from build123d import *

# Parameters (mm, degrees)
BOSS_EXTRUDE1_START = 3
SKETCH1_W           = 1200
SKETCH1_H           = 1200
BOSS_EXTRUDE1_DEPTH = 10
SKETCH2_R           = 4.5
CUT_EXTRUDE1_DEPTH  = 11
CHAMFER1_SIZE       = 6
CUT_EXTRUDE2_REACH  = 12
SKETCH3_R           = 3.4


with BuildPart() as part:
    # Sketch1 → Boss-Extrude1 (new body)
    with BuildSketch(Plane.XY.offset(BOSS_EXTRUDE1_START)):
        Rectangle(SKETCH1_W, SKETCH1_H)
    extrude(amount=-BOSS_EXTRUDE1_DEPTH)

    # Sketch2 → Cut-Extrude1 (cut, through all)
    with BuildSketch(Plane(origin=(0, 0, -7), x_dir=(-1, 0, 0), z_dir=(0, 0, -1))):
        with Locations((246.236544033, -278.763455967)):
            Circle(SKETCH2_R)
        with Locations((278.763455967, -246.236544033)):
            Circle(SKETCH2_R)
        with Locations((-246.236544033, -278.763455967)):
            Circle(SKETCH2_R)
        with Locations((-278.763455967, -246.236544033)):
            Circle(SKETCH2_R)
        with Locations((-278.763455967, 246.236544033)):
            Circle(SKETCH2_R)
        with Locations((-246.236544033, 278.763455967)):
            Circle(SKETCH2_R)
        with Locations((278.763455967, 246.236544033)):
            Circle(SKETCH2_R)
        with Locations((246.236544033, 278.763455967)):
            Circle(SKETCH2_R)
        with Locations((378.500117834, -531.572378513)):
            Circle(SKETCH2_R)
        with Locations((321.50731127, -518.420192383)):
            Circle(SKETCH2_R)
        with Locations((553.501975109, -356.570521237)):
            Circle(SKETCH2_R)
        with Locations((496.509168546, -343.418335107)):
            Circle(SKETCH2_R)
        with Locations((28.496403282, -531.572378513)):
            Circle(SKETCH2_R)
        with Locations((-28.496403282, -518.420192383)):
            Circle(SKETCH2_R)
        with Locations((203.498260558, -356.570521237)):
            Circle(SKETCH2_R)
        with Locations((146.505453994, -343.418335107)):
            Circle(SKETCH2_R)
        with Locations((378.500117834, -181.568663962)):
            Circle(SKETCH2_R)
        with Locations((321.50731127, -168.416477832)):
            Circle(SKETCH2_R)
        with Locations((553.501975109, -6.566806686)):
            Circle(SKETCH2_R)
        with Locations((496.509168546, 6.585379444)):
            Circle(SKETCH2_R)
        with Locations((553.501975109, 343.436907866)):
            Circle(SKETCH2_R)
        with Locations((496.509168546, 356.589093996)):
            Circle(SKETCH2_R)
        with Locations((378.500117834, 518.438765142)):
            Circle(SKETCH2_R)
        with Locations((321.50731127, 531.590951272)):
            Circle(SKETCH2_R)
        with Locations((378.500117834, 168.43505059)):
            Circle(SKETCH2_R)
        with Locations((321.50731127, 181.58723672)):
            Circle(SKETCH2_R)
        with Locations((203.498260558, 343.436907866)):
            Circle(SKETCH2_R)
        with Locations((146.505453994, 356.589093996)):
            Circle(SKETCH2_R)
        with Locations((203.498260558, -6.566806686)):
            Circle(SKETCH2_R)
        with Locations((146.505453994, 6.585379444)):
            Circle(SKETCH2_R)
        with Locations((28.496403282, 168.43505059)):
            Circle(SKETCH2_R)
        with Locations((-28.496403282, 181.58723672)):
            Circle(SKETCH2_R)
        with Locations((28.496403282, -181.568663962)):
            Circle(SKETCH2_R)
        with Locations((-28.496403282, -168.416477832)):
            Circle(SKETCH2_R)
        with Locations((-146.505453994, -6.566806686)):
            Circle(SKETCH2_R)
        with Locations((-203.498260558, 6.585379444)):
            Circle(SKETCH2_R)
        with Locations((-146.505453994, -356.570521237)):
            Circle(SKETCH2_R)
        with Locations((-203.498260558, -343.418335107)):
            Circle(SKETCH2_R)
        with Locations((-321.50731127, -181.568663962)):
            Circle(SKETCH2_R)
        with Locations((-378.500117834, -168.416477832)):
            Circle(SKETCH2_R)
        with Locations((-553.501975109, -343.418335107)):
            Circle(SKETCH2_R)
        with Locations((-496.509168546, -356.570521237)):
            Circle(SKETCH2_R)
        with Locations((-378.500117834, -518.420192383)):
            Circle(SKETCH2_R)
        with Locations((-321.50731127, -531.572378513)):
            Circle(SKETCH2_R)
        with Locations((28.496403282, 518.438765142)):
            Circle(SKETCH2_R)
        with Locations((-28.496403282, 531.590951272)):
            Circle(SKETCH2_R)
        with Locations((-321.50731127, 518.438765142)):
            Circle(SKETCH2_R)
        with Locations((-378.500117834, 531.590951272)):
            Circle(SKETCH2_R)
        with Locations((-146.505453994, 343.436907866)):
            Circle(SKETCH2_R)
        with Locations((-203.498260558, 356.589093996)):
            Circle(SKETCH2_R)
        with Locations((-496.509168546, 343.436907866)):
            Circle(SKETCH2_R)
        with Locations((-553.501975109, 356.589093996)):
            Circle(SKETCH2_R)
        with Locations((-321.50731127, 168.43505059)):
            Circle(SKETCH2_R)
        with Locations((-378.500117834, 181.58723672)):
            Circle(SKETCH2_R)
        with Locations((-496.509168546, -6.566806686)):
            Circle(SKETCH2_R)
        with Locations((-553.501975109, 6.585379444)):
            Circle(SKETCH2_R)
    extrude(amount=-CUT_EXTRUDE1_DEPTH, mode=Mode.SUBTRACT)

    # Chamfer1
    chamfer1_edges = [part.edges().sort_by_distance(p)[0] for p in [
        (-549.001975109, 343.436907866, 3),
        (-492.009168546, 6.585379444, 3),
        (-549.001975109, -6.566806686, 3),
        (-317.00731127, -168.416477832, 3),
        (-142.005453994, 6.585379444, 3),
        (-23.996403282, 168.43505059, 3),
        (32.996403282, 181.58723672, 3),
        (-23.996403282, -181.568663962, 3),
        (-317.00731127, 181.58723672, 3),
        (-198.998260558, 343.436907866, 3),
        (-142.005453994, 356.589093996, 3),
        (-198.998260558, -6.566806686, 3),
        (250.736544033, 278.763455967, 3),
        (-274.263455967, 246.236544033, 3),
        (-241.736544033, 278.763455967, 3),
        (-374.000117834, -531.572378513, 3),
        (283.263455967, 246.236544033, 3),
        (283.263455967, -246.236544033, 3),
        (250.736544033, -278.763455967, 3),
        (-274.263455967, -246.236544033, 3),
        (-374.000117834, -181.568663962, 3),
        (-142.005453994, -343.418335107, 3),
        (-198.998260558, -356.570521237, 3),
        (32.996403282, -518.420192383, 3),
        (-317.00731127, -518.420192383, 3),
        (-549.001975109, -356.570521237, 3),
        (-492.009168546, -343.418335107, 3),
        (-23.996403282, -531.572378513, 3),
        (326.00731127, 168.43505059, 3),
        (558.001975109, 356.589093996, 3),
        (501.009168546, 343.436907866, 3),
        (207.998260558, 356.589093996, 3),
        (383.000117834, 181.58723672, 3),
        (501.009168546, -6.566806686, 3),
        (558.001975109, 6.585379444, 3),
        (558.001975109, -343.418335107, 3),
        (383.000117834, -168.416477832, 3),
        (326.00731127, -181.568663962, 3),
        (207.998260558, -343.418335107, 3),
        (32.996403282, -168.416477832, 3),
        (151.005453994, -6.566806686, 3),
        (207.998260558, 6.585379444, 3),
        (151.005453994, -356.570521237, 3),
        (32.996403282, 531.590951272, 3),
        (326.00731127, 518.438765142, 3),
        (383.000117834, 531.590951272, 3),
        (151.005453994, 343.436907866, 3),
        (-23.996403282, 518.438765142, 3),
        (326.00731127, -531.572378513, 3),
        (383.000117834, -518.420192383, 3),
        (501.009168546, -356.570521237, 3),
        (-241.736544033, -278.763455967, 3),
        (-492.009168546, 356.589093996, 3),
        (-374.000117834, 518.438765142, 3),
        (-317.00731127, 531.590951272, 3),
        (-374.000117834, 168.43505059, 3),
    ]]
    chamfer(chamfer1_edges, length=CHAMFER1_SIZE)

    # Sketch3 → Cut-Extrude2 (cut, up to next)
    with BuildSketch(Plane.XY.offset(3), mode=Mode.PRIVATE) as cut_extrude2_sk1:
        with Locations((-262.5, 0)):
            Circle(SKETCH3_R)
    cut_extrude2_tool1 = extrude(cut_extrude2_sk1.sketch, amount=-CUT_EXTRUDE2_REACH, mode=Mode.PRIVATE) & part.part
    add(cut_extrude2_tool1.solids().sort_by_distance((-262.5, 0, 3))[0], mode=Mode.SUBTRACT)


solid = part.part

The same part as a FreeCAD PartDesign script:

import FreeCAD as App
import Part
import Sketcher


def edges_at(feature, points):
    """Names of the edges that pass closest to the given points."""
    edges = feature.Shape.Edges
    near = lambda p: min(range(len(edges)), key=lambda i: edges[i].distToShape(Part.Vertex(*p))[0])
    return sorted({f"Edge{near(p) + 1}" for p in points})


def add_polygon(sketch, points):
    """Adds a closed chain of lines whose ends are joined by coincident constraints."""
    first, n = sketch.GeometryCount, len(points)
    for a, b in zip(points, points[1:] + points[:1]):
        sketch.addGeometry(Part.LineSegment(App.Vector(*a, 0), App.Vector(*b, 0)), False)
    for i in range(n):
        sketch.addConstraint(Sketcher.Constraint("Coincident", first + i, 2, first + (i + 1) % n, 1))

doc = App.newDocument("Part")
params = doc.addObject("Spreadsheet::Sheet", "Params")
for row, (alias, value) in enumerate([
    ("sketch1_width", "1200 mm"),
    ("pad1_length", "10 mm"),
    ("sketch2_diameter", "9 mm"),
    ("chamfer_size", "6 mm"),
    ("sketch3_diameter", "6.8 mm"),
], start=1):
    params.set(f"A{row}", alias)
    params.set(f"B{row}", "=" + value)
    params.setAlias(f"B{row}", alias)

body = doc.addObject("PartDesign::Body", "Body")

# Sketch on XY plane
sketch1 = body.newObject("Sketcher::SketchObject", "Sketch")
sketch1.AttachmentSupport = (doc.getObject("XY_Plane"), [""])
sketch1.MapMode = "FlatFace"
sketch1.AttachmentOffset = App.Placement(App.Vector(0, 0, 3), App.Rotation())
add_polygon(sketch1, [(-600, 600), (-600, -600), (600, -600), (600, 600)])  # lines 0-3
sketch1.addConstraint([
    Sketcher.Constraint("Vertical", 0),
    Sketcher.Constraint("Horizontal", 1),
    Sketcher.Constraint("Vertical", 2),
    Sketcher.Constraint("Horizontal", 3),
    Sketcher.Constraint("Symmetric", 0, 2, 2, 2, -1, 1),
    Sketcher.Constraint("Equal", 3, 0),
    Sketcher.Constraint("DistanceX", 1, 1, 1, 2, 1200.0),
])
sketch1.setExpression("Constraints[10]", "Params.sketch1_width")
pad1 = body.newObject("PartDesign::Pad", "Pad")
pad1.Profile = sketch1
pad1.setExpression("Length", "Params.pad1_length")
pad1.Reversed = True

# Sketch on XY plane
sketch2 = body.newObject("Sketcher::SketchObject", "Sketch001")
sketch2.AttachmentSupport = (doc.getObject("XY_Plane"), [""])
sketch2.MapMode = "FlatFace"
sketch2.AttachmentOffset = App.Placement(App.Vector(0, 0, -7), App.Rotation())
sketch2.addGeometry([
    Part.Circle(App.Vector(-246.2, -278.8, 0), App.Vector(0, 0, 1), 4.5),  # 0
    Part.Circle(App.Vector(-278.8, -246.2, 0), App.Vector(0, 0, 1), 4.5),  # 1
    Part.Circle(App.Vector(246.2, -278.8, 0), App.Vector(0, 0, 1), 4.5),  # 2
    Part.Circle(App.Vector(278.8, -246.2, 0), App.Vector(0, 0, 1), 4.5),  # 3
    Part.Circle(App.Vector(278.8, 246.2, 0), App.Vector(0, 0, 1), 4.5),  # 4
    Part.Circle(App.Vector(246.2, 278.8, 0), App.Vector(0, 0, 1), 4.5),  # 5
    Part.Circle(App.Vector(-278.8, 246.2, 0), App.Vector(0, 0, 1), 4.5),  # 6
    Part.Circle(App.Vector(-246.2, 278.8, 0), App.Vector(0, 0, 1), 4.5),  # 7
    Part.Circle(App.Vector(-378.5, -531.6, 0), App.Vector(0, 0, 1), 4.5),  # 8
    Part.Circle(App.Vector(-321.5, -518.4, 0), App.Vector(0, 0, 1), 4.5),  # 9
    Part.Circle(App.Vector(-553.5, -356.6, 0), App.Vector(0, 0, 1), 4.5),  # 10
    Part.Circle(App.Vector(-496.5, -343.4, 0), App.Vector(0, 0, 1), 4.5),  # 11
    Part.Circle(App.Vector(-28.5, -531.6, 0), App.Vector(0, 0, 1), 4.5),  # 12
    Part.Circle(App.Vector(28.5, -518.4, 0), App.Vector(0, 0, 1), 4.5),  # 13
    Part.Circle(App.Vector(-203.5, -356.6, 0), App.Vector(0, 0, 1), 4.5),  # 14
    Part.Circle(App.Vector(-146.5, -343.4, 0), App.Vector(0, 0, 1), 4.5),  # 15
    Part.Circle(App.Vector(-378.5, -181.6, 0), App.Vector(0, 0, 1), 4.5),  # 16
    Part.Circle(App.Vector(-321.5, -168.4, 0), App.Vector(0, 0, 1), 4.5),  # 17
    Part.Circle(App.Vector(-553.5, -6.6, 0), App.Vector(0, 0, 1), 4.5),  # 18
    Part.Circle(App.Vector(-496.5, 6.6, 0), App.Vector(0, 0, 1), 4.5),  # 19
    Part.Circle(App.Vector(-553.5, 343.4, 0), App.Vector(0, 0, 1), 4.5),  # 20
    Part.Circle(App.Vector(-496.5, 356.6, 0), App.Vector(0, 0, 1), 4.5),  # 21
    Part.Circle(App.Vector(-378.5, 518.4, 0), App.Vector(0, 0, 1), 4.5),  # 22
    Part.Circle(App.Vector(-321.5, 531.6, 0), App.Vector(0, 0, 1), 4.5),  # 23
    Part.Circle(App.Vector(-378.5, 168.4, 0), App.Vector(0, 0, 1), 4.5),  # 24
    Part.Circle(App.Vector(-321.5, 181.6, 0), App.Vector(0, 0, 1), 4.5),  # 25
    Part.Circle(App.Vector(-203.5, 343.4, 0), App.Vector(0, 0, 1), 4.5),  # 26
    Part.Circle(App.Vector(-146.5, 356.6, 0), App.Vector(0, 0, 1), 4.5),  # 27
    Part.Circle(App.Vector(-203.5, -6.6, 0), App.Vector(0, 0, 1), 4.5),  # 28
    Part.Circle(App.Vector(-146.5, 6.6, 0), App.Vector(0, 0, 1), 4.5),  # 29
    Part.Circle(App.Vector(-28.5, 168.4, 0), App.Vector(0, 0, 1), 4.5),  # 30
    Part.Circle(App.Vector(28.5, 181.6, 0), App.Vector(0, 0, 1), 4.5),  # 31
    Part.Circle(App.Vector(-28.5, -181.6, 0), App.Vector(0, 0, 1), 4.5),  # 32
    Part.Circle(App.Vector(28.5, -168.4, 0), App.Vector(0, 0, 1), 4.5),  # 33
    Part.Circle(App.Vector(146.5, -6.6, 0), App.Vector(0, 0, 1), 4.5),  # 34
    Part.Circle(App.Vector(203.5, 6.6, 0), App.Vector(0, 0, 1), 4.5),  # 35
    Part.Circle(App.Vector(146.5, -356.6, 0), App.Vector(0, 0, 1), 4.5),  # 36
    Part.Circle(App.Vector(203.5, -343.4, 0), App.Vector(0, 0, 1), 4.5),  # 37
    Part.Circle(App.Vector(321.5, -181.6, 0), App.Vector(0, 0, 1), 4.5),  # 38
    Part.Circle(App.Vector(378.5, -168.4, 0), App.Vector(0, 0, 1), 4.5),  # 39
    Part.Circle(App.Vector(553.5, -343.4, 0), App.Vector(0, 0, 1), 4.5),  # 40
    Part.Circle(App.Vector(496.5, -356.6, 0), App.Vector(0, 0, 1), 4.5),  # 41
    Part.Circle(App.Vector(378.5, -518.4, 0), App.Vector(0, 0, 1), 4.5),  # 42
    Part.Circle(App.Vector(321.5, -531.6, 0), App.Vector(0, 0, 1), 4.5),  # 43
    Part.Circle(App.Vector(-28.5, 518.4, 0), App.Vector(0, 0, 1), 4.5),  # 44
    Part.Circle(App.Vector(28.5, 531.6, 0), App.Vector(0, 0, 1), 4.5),  # 45
    Part.Circle(App.Vector(321.5, 518.4, 0), App.Vector(0, 0, 1), 4.5),  # 46
    Part.Circle(App.Vector(378.5, 531.6, 0), App.Vector(0, 0, 1), 4.5),  # 47
    Part.Circle(App.Vector(146.5, 343.4, 0), App.Vector(0, 0, 1), 4.5),  # 48
    Part.Circle(App.Vector(203.5, 356.6, 0), App.Vector(0, 0, 1), 4.5),  # 49
    Part.Circle(App.Vector(496.5, 343.4, 0), App.Vector(0, 0, 1), 4.5),  # 50
    Part.Circle(App.Vector(553.5, 356.6, 0), App.Vector(0, 0, 1), 4.5),  # 51
    Part.Circle(App.Vector(321.5, 168.4, 0), App.Vector(0, 0, 1), 4.5),  # 52
    Part.Circle(App.Vector(378.5, 181.6, 0), App.Vector(0, 0, 1), 4.5),  # 53
    Part.Circle(App.Vector(496.5, -6.6, 0), App.Vector(0, 0, 1), 4.5),  # 54
    Part.Circle(App.Vector(553.5, 6.6, 0), App.Vector(0, 0, 1), 4.5),  # 55
], False)
sketch2.addConstraint([
    Sketcher.Constraint("Equal", 0, 1),
    Sketcher.Constraint("Equal", 1, 2),
    Sketcher.Constraint("Equal", 2, 3),
    Sketcher.Constraint("Equal", 3, 4),
    Sketcher.Constraint("Equal", 4, 5),
    Sketcher.Constraint("Equal", 5, 6),
    Sketcher.Constraint("Equal", 6, 7),
    Sketcher.Constraint("Equal", 7, 8),
    Sketcher.Constraint("Equal", 8, 9),
    Sketcher.Constraint("Equal", 9, 10),
    Sketcher.Constraint("Equal", 10, 11),
    Sketcher.Constraint("Equal", 11, 12),
    Sketcher.Constraint("Equal", 12, 13),
    Sketcher.Constraint("Equal", 13, 14),
    Sketcher.Constraint("Equal", 14, 15),
    Sketcher.Constraint("Equal", 15, 16),
    Sketcher.Constraint("Equal", 16, 17),
    Sketcher.Constraint("Equal", 17, 18),
    Sketcher.Constraint("Equal", 18, 19),
    Sketcher.Constraint("Equal", 19, 20),
    Sketcher.Constraint("Equal", 20, 21),
    Sketcher.Constraint("Equal", 21, 22),
    Sketcher.Constraint("Equal", 22, 23),
    Sketcher.Constraint("Equal", 23, 24),
    Sketcher.Constraint("Equal", 24, 25),
    Sketcher.Constraint("Equal", 25, 26),
    Sketcher.Constraint("Equal", 26, 27),
    Sketcher.Constraint("Equal", 27, 28),
    Sketcher.Constraint("Equal", 28, 29),
    Sketcher.Constraint("Equal", 29, 30),
    Sketcher.Constraint("Equal", 30, 31),
    Sketcher.Constraint("Equal", 31, 32),
    Sketcher.Constraint("Equal", 32, 33),
    Sketcher.Constraint("Equal", 33, 34),
    Sketcher.Constraint("Equal", 34, 35),
    Sketcher.Constraint("Equal", 35, 36),
    Sketcher.Constraint("Equal", 36, 37),
    Sketcher.Constraint("Equal", 37, 38),
    Sketcher.Constraint("Equal", 38, 39),
    Sketcher.Constraint("Equal", 39, 40),
    Sketcher.Constraint("Equal", 40, 41),
    Sketcher.Constraint("Equal", 41, 42),
    Sketcher.Constraint("Equal", 42, 43),
    Sketcher.Constraint("Equal", 43, 44),
    Sketcher.Constraint("Equal", 44, 45),
    Sketcher.Constraint("Equal", 45, 46),
    Sketcher.Constraint("Equal", 46, 47),
    Sketcher.Constraint("Equal", 47, 48),
    Sketcher.Constraint("Equal", 48, 49),
    Sketcher.Constraint("Equal", 49, 50),
    Sketcher.Constraint("Equal", 50, 51),
    Sketcher.Constraint("Equal", 51, 52),
    Sketcher.Constraint("Equal", 52, 53),
    Sketcher.Constraint("Equal", 53, 54),
    Sketcher.Constraint("Equal", 54, 55),
    Sketcher.Constraint("Symmetric", 1, 3, 4, 3, -1, 1),
    Sketcher.Constraint("Symmetric", 0, 3, 5, 3, -1, 1),
    Sketcher.Constraint("Symmetric", 3, 3, 6, 3, -1, 1),
    Sketcher.Constraint("Symmetric", 2, 3, 7, 3, -1, 1),
    Sketcher.Constraint("Symmetric", 0, 3, 2, 3, -2),
    Sketcher.Constraint("Symmetric", 1, 3, 3, 3, -2),
    Sketcher.Constraint("Horizontal", 8, 3, 12, 3),
    Sketcher.Constraint("Horizontal", 9, 3, 13, 3),
    Sketcher.Constraint("Horizontal", 10, 3, 14, 3),
    Sketcher.Constraint("Horizontal", 11, 3, 15, 3),
    Sketcher.Constraint("Horizontal", 20, 3, 26, 3),
    Sketcher.Constraint("Horizontal", 21, 3, 27, 3),
    Sketcher.Constraint("Horizontal", 18, 3, 28, 3),
    Sketcher.Constraint("Horizontal", 19, 3, 29, 3),
    Sketcher.Constraint("Horizontal", 24, 3, 30, 3),
    Sketcher.Constraint("Horizontal", 25, 3, 31, 3),
    Sketcher.Constraint("Horizontal", 16, 3, 32, 3),
    Sketcher.Constraint("Horizontal", 17, 3, 33, 3),
    Sketcher.Constraint("Horizontal", 28, 3, 34, 3),
    Sketcher.Constraint("Horizontal", 29, 3, 35, 3),
    Sketcher.Constraint("Horizontal", 14, 3, 36, 3),
    Sketcher.Constraint("Horizontal", 15, 3, 37, 3),
    Sketcher.Constraint("Horizontal", 32, 3, 38, 3),
    Sketcher.Constraint("Horizontal", 33, 3, 39, 3),
    Sketcher.Constraint("Horizontal", 37, 3, 40, 3),
    Sketcher.Constraint("Horizontal", 36, 3, 41, 3),
    Sketcher.Constraint("Horizontal", 13, 3, 42, 3),
    Sketcher.Constraint("Horizontal", 12, 3, 43, 3),
    Sketcher.Constraint("Horizontal", 22, 3, 44, 3),
    Sketcher.Constraint("Horizontal", 23, 3, 45, 3),
    Sketcher.Constraint("Horizontal", 44, 3, 46, 3),
    Sketcher.Constraint("Horizontal", 45, 3, 47, 3),
    Sketcher.Constraint("Horizontal", 26, 3, 48, 3),
    Sketcher.Constraint("Horizontal", 27, 3, 49, 3),
    Sketcher.Constraint("Horizontal", 48, 3, 50, 3),
    Sketcher.Constraint("Horizontal", 49, 3, 51, 3),
    Sketcher.Constraint("Horizontal", 30, 3, 52, 3),
    Sketcher.Constraint("Horizontal", 31, 3, 53, 3),
    Sketcher.Constraint("Horizontal", 34, 3, 54, 3),
    Sketcher.Constraint("Horizontal", 35, 3, 55, 3),
    Sketcher.Constraint("Vertical", 8, 3, 16, 3),
    Sketcher.Constraint("Vertical", 9, 3, 17, 3),
    Sketcher.Constraint("Vertical", 10, 3, 18, 3),
    Sketcher.Constraint("Vertical", 11, 3, 19, 3),
    Sketcher.Constraint("Vertical", 18, 3, 20, 3),
    Sketcher.Constraint("Vertical", 19, 3, 21, 3),
    Sketcher.Constraint("Vertical", 16, 3, 22, 3),
    Sketcher.Constraint("Vertical", 17, 3, 23, 3),
    Sketcher.Constraint("Vertical", 22, 3, 24, 3),
    Sketcher.Constraint("Vertical", 23, 3, 25, 3),
    Sketcher.Constraint("Vertical", 14, 3, 26, 3),
    Sketcher.Constraint("Vertical", 15, 3, 27, 3),
    Sketcher.Constraint("Vertical", 26, 3, 28, 3),
    Sketcher.Constraint("Vertical", 27, 3, 29, 3),
    Sketcher.Constraint("Vertical", 12, 3, 30, 3),
    Sketcher.Constraint("Vertical", 13, 3, 31, 3),
    Sketcher.Constraint("Vertical", 30, 3, 32, 3),
    Sketcher.Constraint("Vertical", 31, 3, 33, 3),
    Sketcher.Constraint("Vertical", 34, 3, 36, 3),
    Sketcher.Constraint("Vertical", 35, 3, 37, 3),
    Sketcher.Constraint("Vertical", 39, 3, 42, 3),
    Sketcher.Constraint("Vertical", 38, 3, 43, 3),
    Sketcher.Constraint("Vertical", 32, 3, 44, 3),
    Sketcher.Constraint("Vertical", 33, 3, 45, 3),
    Sketcher.Constraint("Vertical", 43, 3, 46, 3),
    Sketcher.Constraint("Vertical", 42, 3, 47, 3),
    Sketcher.Constraint("Vertical", 36, 3, 48, 3),
    Sketcher.Constraint("Vertical", 37, 3, 49, 3),
    Sketcher.Constraint("Vertical", 41, 3, 50, 3),
    Sketcher.Constraint("Vertical", 40, 3, 51, 3),
    Sketcher.Constraint("Vertical", 46, 3, 52, 3),
    Sketcher.Constraint("Vertical", 47, 3, 53, 3),
    Sketcher.Constraint("Vertical", 50, 3, 54, 3),
    Sketcher.Constraint("Vertical", 51, 3, 55, 3),
    Sketcher.Constraint("Diameter", 0, 9.0),
    Sketcher.Constraint("DistanceX", 1, 3, 2, 3, 525.0),
    Sketcher.Constraint("DistanceY", 2, 3, 4, 3, 525.0),
    Sketcher.Constraint("DistanceX", 1, 3, 15, 3, 132.258002),
    Sketcher.Constraint("DistanceX", 34, 3, 3, 3, 132.258002),
    Sketcher.Constraint("DistanceY", 18, 3, 21, 3, 363.155901),
    Sketcher.Constraint("DistanceY", 8, 3, -1, 1, 531.572379),
    Sketcher.Constraint("DistanceX", 9, 3, -1, 1, 321.507311),
    Sketcher.Constraint("DistanceY", 10, 3, -1, 1, 356.570521),
    Sketcher.Constraint("DistanceX", 11, 3, -1, 1, 496.509169),
    Sketcher.Constraint("DistanceX", 14, 3, -1, 1, 203.498261),
    Sketcher.Constraint("DistanceY", -1, 1, 19, 3, 6.585379),
    Sketcher.Constraint("DistanceY", -1, 1, 23, 3, 531.590951),
    Sketcher.Constraint("DistanceY", -1, 1, 24, 3, 168.435051),
    Sketcher.Constraint("DistanceX", -1, 1, 35, 3, 203.498261),
    Sketcher.Constraint("DistanceX", -1, 1, 38, 3, 321.507311),
    Sketcher.Constraint("DistanceX", -1, 1, 41, 3, 496.509169),
    Sketcher.Constraint("DistanceX", 1, 3, 0, 3, 32.526912),
    Sketcher.Constraint("DistanceY", 0, 3, 1, 3, 32.526912),
    Sketcher.Constraint("DistanceX", 8, 3, 1, 3, 99.736662),
    Sketcher.Constraint("DistanceY", 9, 3, 1, 3, 272.183648),
    Sketcher.Constraint("DistanceX", 10, 3, 1, 3, 274.738519),
    Sketcher.Constraint("DistanceY", 11, 3, 1, 3, 97.181791),
    Sketcher.Constraint("DistanceX", 0, 3, 12, 3, 217.740141),
    Sketcher.Constraint("DistanceX", 13, 3, 2, 3, 217.740141),
    Sketcher.Constraint("DistanceY", 1, 3, 16, 3, 64.66788),
    Sketcher.Constraint("DistanceY", 0, 3, 17, 3, 110.346978),
    Sketcher.Constraint("DistanceY", 17, 3, 18, 3, 161.849671),
    Sketcher.Constraint("DistanceY", 7, 3, 20, 3, 64.673452),
    Sketcher.Constraint("DistanceY", 21, 3, 22, 3, 161.849671),
    Sketcher.Constraint("DistanceY", 25, 3, 7, 3, 97.176219),
    Sketcher.Constraint("DistanceX", 3, 3, 39, 3, 99.736662),
    Sketcher.Constraint("DistanceX", 3, 3, 40, 3, 274.738519),
])
sketch2.setExpression("Constraints[129]", "Params.sketch2_diameter")
pocket1 = body.newObject("PartDesign::Pocket", "Pocket")
pocket1.Profile = sketch2
pocket1.Type = "ThroughAll"
pocket1.Reversed = True
doc.recompute()

chamfer = body.newObject("PartDesign::Chamfer", "Chamfer")
chamfer.Base = (pocket1, edges_at(pocket1, [
    (-549.002, 343.437, 3),
    (-492.009, 6.585, 3),
    (-549.002, -6.567, 3),
    (-317.007, -168.416, 3),
    (-142.005, 6.585, 3),
    (-23.996, 168.435, 3),
    (32.996, 181.587, 3),
    (-23.996, -181.569, 3),
    (-317.007, 181.587, 3),
    (-198.998, 343.437, 3),
    (-142.005, 356.589, 3),
    (-198.998, -6.567, 3),
    (250.737, 278.763, 3),
    (-274.263, 246.237, 3),
    (-241.737, 278.763, 3),
    (-374, -531.572, 3),
    (283.263, 246.237, 3),
    (283.263, -246.237, 3),
    (250.737, -278.763, 3),
    (-274.263, -246.237, 3),
    (-374, -181.569, 3),
    (-142.005, -343.418, 3),
    (-198.998, -356.571, 3),
    (32.996, -518.42, 3),
    (-317.007, -518.42, 3),
    (-549.002, -356.571, 3),
    (-492.009, -343.418, 3),
    (-23.996, -531.572, 3),
    (326.007, 168.435, 3),
    (558.002, 356.589, 3),
    (501.009, 343.437, 3),
    (207.998, 356.589, 3),
    (383, 181.587, 3),
    (501.009, -6.567, 3),
    (558.002, 6.585, 3),
    (558.002, -343.418, 3),
    (383, -168.416, 3),
    (326.007, -181.569, 3),
    (207.998, -343.418, 3),
    (32.996, -168.416, 3),
    (151.005, -6.567, 3),
    (207.998, 6.585, 3),
    (151.005, -356.571, 3),
    (32.996, 531.591, 3),
    (326.007, 518.439, 3),
    (383, 531.591, 3),
    (151.005, 343.437, 3),
    (-23.996, 518.439, 3),
    (326.007, -531.572, 3),
    (383, -518.42, 3),
    (501.009, -356.571, 3),
    (-241.737, -278.763, 3),
    (-492.009, 356.589, 3),
    (-374, 518.439, 3),
    (-317.007, 531.591, 3),
    (-374, 168.435, 3),
]))
chamfer.setExpression("Size", "Params.chamfer_size")

# Sketch on XY plane
sketch3 = body.newObject("Sketcher::SketchObject", "Sketch002")
sketch3.AttachmentSupport = (doc.getObject("XY_Plane"), [""])
sketch3.MapMode = "FlatFace"
sketch3.AttachmentOffset = App.Placement(App.Vector(0, 0, 3), App.Rotation())
sketch3.addGeometry(Part.Circle(App.Vector(-262.5, 0, 0), App.Vector(0, 0, 1), 3.4), False)
sketch3.addConstraint([
    Sketcher.Constraint("PointOnObject", 0, 3, -1),
    Sketcher.Constraint("Diameter", 0, 6.8),
    Sketcher.Constraint("DistanceX", 0, 3, -1, 1, 262.5),
])
sketch3.setExpression("Constraints[1]", "Params.sketch3_diameter")
pocket2 = body.newObject("PartDesign::Pocket", "Pocket001")
pocket2.Profile = sketch3
pocket2.Type = "UpToFirst"

doc.recompute()
